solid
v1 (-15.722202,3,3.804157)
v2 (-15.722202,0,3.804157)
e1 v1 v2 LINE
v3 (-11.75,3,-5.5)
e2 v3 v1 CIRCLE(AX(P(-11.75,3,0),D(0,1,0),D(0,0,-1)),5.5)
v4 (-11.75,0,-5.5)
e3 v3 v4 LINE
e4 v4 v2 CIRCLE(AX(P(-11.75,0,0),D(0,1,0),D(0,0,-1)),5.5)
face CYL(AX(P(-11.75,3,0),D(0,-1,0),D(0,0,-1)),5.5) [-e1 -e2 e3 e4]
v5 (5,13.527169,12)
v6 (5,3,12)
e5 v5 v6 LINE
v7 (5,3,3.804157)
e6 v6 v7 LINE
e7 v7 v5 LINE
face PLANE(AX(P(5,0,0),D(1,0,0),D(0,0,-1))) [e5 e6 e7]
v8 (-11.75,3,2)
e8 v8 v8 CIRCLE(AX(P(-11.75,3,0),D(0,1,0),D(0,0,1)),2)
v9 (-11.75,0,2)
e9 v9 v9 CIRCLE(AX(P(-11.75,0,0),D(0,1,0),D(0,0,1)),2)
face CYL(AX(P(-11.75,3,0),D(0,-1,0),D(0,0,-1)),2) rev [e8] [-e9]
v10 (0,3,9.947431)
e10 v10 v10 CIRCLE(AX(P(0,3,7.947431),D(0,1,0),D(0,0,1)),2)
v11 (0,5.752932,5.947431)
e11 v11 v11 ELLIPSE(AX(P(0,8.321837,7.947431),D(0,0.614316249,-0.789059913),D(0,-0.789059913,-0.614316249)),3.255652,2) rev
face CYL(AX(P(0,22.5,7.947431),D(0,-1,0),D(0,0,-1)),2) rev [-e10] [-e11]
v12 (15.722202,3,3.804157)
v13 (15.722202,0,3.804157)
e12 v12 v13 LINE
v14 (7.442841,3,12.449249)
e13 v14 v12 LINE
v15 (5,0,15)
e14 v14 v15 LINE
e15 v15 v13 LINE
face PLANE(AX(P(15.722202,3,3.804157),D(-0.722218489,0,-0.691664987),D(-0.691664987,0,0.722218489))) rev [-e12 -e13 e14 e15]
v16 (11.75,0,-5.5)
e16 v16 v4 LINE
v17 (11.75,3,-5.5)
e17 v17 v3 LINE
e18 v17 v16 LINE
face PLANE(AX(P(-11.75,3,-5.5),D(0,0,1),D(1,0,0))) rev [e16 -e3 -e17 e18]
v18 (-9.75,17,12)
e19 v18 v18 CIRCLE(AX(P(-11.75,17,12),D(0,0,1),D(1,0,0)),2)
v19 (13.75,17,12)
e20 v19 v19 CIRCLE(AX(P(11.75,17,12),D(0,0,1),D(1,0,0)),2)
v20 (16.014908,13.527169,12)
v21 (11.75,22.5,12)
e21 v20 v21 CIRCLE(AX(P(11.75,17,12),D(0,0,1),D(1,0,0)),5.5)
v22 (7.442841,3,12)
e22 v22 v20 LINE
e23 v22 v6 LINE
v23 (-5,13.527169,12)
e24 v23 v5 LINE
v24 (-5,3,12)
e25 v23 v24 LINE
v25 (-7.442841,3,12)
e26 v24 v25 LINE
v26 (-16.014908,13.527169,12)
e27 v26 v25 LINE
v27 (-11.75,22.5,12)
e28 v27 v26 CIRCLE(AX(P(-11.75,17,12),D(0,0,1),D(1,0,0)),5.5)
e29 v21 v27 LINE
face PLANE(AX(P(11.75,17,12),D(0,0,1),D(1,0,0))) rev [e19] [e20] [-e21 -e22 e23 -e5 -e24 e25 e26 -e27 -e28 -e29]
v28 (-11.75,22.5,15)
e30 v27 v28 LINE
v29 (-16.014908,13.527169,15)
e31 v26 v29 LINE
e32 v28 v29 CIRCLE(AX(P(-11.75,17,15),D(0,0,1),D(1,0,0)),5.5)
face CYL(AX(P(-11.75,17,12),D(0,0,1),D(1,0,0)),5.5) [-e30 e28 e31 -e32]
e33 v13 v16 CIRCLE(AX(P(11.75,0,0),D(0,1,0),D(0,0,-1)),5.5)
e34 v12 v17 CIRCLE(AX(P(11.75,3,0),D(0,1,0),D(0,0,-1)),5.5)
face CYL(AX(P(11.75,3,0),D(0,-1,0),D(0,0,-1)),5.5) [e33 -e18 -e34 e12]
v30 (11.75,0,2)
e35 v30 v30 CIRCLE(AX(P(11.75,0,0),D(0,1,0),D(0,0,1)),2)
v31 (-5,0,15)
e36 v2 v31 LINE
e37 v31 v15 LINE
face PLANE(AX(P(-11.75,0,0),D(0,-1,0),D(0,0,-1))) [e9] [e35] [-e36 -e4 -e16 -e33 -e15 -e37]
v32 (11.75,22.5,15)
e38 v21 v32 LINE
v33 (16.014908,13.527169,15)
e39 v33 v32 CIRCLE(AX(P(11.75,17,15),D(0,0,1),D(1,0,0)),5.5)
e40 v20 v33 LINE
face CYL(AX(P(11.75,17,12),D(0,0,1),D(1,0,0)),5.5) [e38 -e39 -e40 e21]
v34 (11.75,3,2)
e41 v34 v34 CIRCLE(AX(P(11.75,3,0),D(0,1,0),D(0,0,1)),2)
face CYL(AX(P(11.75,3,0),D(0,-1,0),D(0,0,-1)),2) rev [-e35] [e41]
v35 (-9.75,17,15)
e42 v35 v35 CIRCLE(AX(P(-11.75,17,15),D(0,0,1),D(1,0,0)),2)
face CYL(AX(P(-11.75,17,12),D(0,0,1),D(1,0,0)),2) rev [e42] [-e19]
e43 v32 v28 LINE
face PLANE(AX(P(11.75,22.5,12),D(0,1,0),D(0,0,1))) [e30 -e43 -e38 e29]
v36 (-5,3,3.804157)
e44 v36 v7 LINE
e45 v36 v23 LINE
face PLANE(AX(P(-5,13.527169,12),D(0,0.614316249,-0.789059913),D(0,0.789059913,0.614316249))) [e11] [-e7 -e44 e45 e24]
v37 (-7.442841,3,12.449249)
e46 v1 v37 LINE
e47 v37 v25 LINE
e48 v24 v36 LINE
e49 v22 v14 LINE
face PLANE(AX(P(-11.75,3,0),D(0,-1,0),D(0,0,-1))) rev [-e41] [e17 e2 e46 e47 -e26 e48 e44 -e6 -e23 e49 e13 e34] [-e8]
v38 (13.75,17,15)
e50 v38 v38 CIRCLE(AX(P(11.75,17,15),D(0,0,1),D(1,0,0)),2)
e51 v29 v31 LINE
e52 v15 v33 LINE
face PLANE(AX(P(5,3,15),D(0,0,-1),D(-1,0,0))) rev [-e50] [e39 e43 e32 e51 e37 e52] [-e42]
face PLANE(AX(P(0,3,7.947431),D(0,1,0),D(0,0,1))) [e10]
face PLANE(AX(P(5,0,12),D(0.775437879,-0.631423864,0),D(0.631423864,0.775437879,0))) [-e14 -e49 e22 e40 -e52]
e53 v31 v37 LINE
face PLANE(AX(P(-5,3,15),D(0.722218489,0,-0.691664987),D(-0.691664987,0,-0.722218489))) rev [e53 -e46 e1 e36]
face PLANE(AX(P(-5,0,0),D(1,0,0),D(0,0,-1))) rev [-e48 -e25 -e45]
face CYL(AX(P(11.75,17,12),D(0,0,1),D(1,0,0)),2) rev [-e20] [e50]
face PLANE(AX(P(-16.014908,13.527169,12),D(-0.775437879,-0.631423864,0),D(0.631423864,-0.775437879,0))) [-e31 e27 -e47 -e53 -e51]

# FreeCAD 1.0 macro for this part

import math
import FreeCAD as App
import Part
import Sketcher

V = App.Vector
Q = App.Units.Quantity


def add_polygon(sketch, points):
    """Adds a closed chain of lines whose ends are joined by coincident constraints."""
    first, n = sketch.GeometryCount, len(points)
    for a, b in zip(points, points[1:] + points[:1]):
        sketch.addGeometry(Part.LineSegment(App.Vector(*a, 0), App.Vector(*b, 0)), False)
    for i in range(n):
        sketch.addConstraint(Sketcher.Constraint("Coincident", first + i, 2, first + (i + 1) % n, 1))

doc = App.newDocument("Part")
body = doc.addObject("PartDesign::Body", "Body")

sketch1 = body.newObject("Sketcher::SketchObject", "Sketch")
sketch1.AttachmentSupport = (doc.getObject("XZ_Plane"), [""])
sketch1.MapMode = "FlatFace"
sketch1.addGeometry(Part.LineSegment(V(11.8, -5.5, 0), V(-11.8, -5.5, 0)), False)
sketch1.addGeometry(Part.ArcOfCircle(Part.Circle(V(-11.8, 0, 0), V(0, 0, 1), 5.5), math.radians(136), math.radians(270)), False)
sketch1.addGeometry(Part.LineSegment(V(-15.7, 3.8, 0), V(-5, 15, 0)), False)
sketch1.addGeometry(Part.LineSegment(V(-5, 15, 0), V(5, 15, 0)), False)
sketch1.addGeometry(Part.LineSegment(V(5, 15, 0), V(15.7, 3.8, 0)), False)
sketch1.addGeometry(Part.ArcOfCircle(Part.Circle(V(11.8, 0, 0), V(0, 0, 1), 5.5), math.radians(-90), math.radians(44)), False)
sketch1.addGeometry(Part.Circle(V(11.8, 0, 0), V(0, 0, 1), 2), False)
sketch1.addGeometry(Part.Circle(V(-11.8, 0, 0), V(0, 0, 1), 2), False)
sketch1.addConstraint(Sketcher.Constraint("Tangent", 0, 2, 1, 2))
sketch1.addConstraint(Sketcher.Constraint("Tangent", 1, 1, 2, 1))
sketch1.addConstraint(Sketcher.Constraint("Coincident", 2, 2, 3, 1))
sketch1.addConstraint(Sketcher.Constraint("Coincident", 3, 2, 4, 1))
sketch1.addConstraint(Sketcher.Constraint("Tangent", 4, 2, 5, 2))
sketch1.addConstraint(Sketcher.Constraint("Tangent", 5, 1, 0, 1))
sketch1.addConstraint(Sketcher.Constraint("Horizontal", 0))
sketch1.addConstraint(Sketcher.Constraint("Horizontal", 3))
sketch1.addConstraint(Sketcher.Constraint("Coincident", 6, 3, 5, 3))
sketch1.addConstraint(Sketcher.Constraint("Coincident", 7, 3, 1, 3))
sketch1.addConstraint(Sketcher.Constraint("Equal", 1, 5))
sketch1.addConstraint(Sketcher.Constraint("Equal", 6, 7))
sketch1.addConstraint(Sketcher.Constraint("Symmetric", 1, 3, 5, 3, -1, 1))
sketch1.addConstraint(Sketcher.Constraint("Horizontal", 1, 1, 4, 2))
sketch1.addConstraint(Sketcher.Constraint("Diameter", 6, Q("4 mm")))
sketch1.addConstraint(Sketcher.Constraint("Radius", 1, Q("5.5 mm")))
sketch1.addConstraint(Sketcher.Constraint("DistanceX", 3, 1, 3, 2, Q("10 mm")))
sketch1.addConstraint(Sketcher.Constraint("DistanceX", 0, 2, 0, 1, Q("23.5 mm")))
sketch1.addConstraint(Sketcher.Constraint("DistanceY", -1, 1, 2, 2, Q("15 mm")))
pad1 = body.newObject("PartDesign::Pad", "Pad")
pad1.Profile = sketch1
pad1.Length = 3
pad1.Reversed = True

sketch2 = body.newObject("Sketcher::SketchObject", "Sketch001")
sketch2.AttachmentSupport = (doc.getObject("XY_Plane"), [""])
sketch2.MapMode = "FlatFace"
sketch2.AttachmentOffset = App.Placement(V(0, 0, 15), App.Rotation())
sketch2.addGeometry(Part.LineSegment(V(11.8, 22.5, 0), V(-11.8, 22.5, 0)), False)
sketch2.addGeometry(Part.ArcOfCircle(Part.Circle(V(-11.7, 17, 0), V(0, 0, 1), 5.5), math.radians(90), math.radians(219)), False)
sketch2.addGeometry(Part.LineSegment(V(-16, 13.5, 0), V(-5, 0, 0)), False)
sketch2.addGeometry(Part.LineSegment(V(-5, 0, 0), V(5, 0, 0)), False)
sketch2.addGeometry(Part.LineSegment(V(5, 0, 0), V(16, 13.5, 0)), False)
sketch2.addGeometry(Part.ArcOfCircle(Part.Circle(V(11.7, 17, 0), V(0, 0, 1), 5.5), math.radians(-39), math.radians(90)), False)
sketch2.addGeometry(Part.Circle(V(-11.8, 17, 0), V(0, 0, 1), 2), False)
sketch2.addGeometry(Part.Circle(V(11.8, 17, 0), V(0, 0, 1), 2), False)
sketch2.addConstraint(Sketcher.Constraint("Tangent", 0, 2, 1, 1))
sketch2.addConstraint(Sketcher.Constraint("Tangent", 1, 2, 2, 1))
sketch2.addConstraint(Sketcher.Constraint("Coincident", 2, 2, 3, 1))
sketch2.addConstraint(Sketcher.Constraint("Coincident", 3, 2, 4, 1))
sketch2.addConstraint(Sketcher.Constraint("Tangent", 4, 2, 5, 1))
sketch2.addConstraint(Sketcher.Constraint("Tangent", 5, 2, 0, 1))
sketch2.addConstraint(Sketcher.Constraint("Horizontal", 0))
sketch2.addConstraint(Sketcher.Constraint("Horizontal", 3))
sketch2.addConstraint(Sketcher.Constraint("Coincident", 6, 3, 1, 3))
sketch2.addConstraint(Sketcher.Constraint("Coincident", 7, 3, 5, 3))
sketch2.addConstraint(Sketcher.Constraint("Equal", 1, 5))
sketch2.addConstraint(Sketcher.Constraint("Equal", 6, 7))
sketch2.addConstraint(Sketcher.Constraint("Symmetric", 2, 2, 3, 2, -1, 1))
sketch2.addConstraint(Sketcher.Constraint("Horizontal", 1, 2, 4, 2))
sketch2.addConstraint(Sketcher.Constraint("Diameter", 6, Q("4 mm")))
sketch2.addConstraint(Sketcher.Constraint("Radius", 1, Q("5.5 mm")))
sketch2.addConstraint(Sketcher.Constraint("DistanceX", 3, 1, 3, 2, Q("10 mm")))
sketch2.addConstraint(Sketcher.Constraint("DistanceX", 0, 2, 0, 1, Q("23.5 mm")))
sketch2.addConstraint(Sketcher.Constraint("DistanceY", -1, 1, 1, 3, Q("17 mm")))
pad2 = body.newObject("PartDesign::Pad", "Pad001")
pad2.Profile = sketch2
pad2.Length = 3
pad2.Reversed = True

sketch3 = body.newObject("Sketcher::SketchObject", "Sketch002")
sketch3.AttachmentSupport = (doc.getObject("YZ_Plane"), [""])
sketch3.MapMode = "FlatFace"
add_polygon(sketch3, [(3, 4), (14, 12), (3, 12)])
sketch3.addConstraint(Sketcher.Constraint("Horizontal", 1))
sketch3.addConstraint(Sketcher.Constraint("Vertical", 2))
sketch3.addConstraint(Sketcher.Constraint("DistanceY", -1, 1, 0, 2, Q("12 mm")))
sketch3.addConstraint(Sketcher.Constraint("DistanceX", -1, 1, 1, 2, Q("3 mm")))
sketch3.addConstraint(Sketcher.Constraint("DistanceX", 1, 2, 1, 1, Q("10.527169 mm")))
sketch3.addConstraint(Sketcher.Constraint("DistanceY", 2, 2, 2, 1, Q("8.195843 mm")))
pad3 = body.newObject("PartDesign::Pad", "Pad002")
pad3.Profile = sketch3
pad3.Type = "TwoLengths"
pad3.Length = 5
pad3.Length2 = 5

sketch4 = body.newObject("Sketcher::SketchObject", "Sketch003")
sketch4.AttachmentSupport = (doc.getObject("XZ_Plane"), [""])
sketch4.MapMode = "FlatFace"
sketch4.AttachmentOffset = App.Placement(V(0, 0, -3), App.Rotation())
sketch4.addGeometry(Part.Circle(V(0, 7.9, 0), V(0, 0, 1), 2), False)
sketch4.addConstraint(Sketcher.Constraint("PointOnObject", 0, 3, -2))
sketch4.addConstraint(Sketcher.Constraint("Diameter", 0, Q("4 mm")))
sketch4.addConstraint(Sketcher.Constraint("DistanceY", -1, 1, 0, 3, Q("7.947431 mm")))
pocket1 = body.newObject("PartDesign::Pocket", "Pocket")
pocket1.Profile = sketch4
pocket1.Type = "ThroughAll"

doc.recompute()
